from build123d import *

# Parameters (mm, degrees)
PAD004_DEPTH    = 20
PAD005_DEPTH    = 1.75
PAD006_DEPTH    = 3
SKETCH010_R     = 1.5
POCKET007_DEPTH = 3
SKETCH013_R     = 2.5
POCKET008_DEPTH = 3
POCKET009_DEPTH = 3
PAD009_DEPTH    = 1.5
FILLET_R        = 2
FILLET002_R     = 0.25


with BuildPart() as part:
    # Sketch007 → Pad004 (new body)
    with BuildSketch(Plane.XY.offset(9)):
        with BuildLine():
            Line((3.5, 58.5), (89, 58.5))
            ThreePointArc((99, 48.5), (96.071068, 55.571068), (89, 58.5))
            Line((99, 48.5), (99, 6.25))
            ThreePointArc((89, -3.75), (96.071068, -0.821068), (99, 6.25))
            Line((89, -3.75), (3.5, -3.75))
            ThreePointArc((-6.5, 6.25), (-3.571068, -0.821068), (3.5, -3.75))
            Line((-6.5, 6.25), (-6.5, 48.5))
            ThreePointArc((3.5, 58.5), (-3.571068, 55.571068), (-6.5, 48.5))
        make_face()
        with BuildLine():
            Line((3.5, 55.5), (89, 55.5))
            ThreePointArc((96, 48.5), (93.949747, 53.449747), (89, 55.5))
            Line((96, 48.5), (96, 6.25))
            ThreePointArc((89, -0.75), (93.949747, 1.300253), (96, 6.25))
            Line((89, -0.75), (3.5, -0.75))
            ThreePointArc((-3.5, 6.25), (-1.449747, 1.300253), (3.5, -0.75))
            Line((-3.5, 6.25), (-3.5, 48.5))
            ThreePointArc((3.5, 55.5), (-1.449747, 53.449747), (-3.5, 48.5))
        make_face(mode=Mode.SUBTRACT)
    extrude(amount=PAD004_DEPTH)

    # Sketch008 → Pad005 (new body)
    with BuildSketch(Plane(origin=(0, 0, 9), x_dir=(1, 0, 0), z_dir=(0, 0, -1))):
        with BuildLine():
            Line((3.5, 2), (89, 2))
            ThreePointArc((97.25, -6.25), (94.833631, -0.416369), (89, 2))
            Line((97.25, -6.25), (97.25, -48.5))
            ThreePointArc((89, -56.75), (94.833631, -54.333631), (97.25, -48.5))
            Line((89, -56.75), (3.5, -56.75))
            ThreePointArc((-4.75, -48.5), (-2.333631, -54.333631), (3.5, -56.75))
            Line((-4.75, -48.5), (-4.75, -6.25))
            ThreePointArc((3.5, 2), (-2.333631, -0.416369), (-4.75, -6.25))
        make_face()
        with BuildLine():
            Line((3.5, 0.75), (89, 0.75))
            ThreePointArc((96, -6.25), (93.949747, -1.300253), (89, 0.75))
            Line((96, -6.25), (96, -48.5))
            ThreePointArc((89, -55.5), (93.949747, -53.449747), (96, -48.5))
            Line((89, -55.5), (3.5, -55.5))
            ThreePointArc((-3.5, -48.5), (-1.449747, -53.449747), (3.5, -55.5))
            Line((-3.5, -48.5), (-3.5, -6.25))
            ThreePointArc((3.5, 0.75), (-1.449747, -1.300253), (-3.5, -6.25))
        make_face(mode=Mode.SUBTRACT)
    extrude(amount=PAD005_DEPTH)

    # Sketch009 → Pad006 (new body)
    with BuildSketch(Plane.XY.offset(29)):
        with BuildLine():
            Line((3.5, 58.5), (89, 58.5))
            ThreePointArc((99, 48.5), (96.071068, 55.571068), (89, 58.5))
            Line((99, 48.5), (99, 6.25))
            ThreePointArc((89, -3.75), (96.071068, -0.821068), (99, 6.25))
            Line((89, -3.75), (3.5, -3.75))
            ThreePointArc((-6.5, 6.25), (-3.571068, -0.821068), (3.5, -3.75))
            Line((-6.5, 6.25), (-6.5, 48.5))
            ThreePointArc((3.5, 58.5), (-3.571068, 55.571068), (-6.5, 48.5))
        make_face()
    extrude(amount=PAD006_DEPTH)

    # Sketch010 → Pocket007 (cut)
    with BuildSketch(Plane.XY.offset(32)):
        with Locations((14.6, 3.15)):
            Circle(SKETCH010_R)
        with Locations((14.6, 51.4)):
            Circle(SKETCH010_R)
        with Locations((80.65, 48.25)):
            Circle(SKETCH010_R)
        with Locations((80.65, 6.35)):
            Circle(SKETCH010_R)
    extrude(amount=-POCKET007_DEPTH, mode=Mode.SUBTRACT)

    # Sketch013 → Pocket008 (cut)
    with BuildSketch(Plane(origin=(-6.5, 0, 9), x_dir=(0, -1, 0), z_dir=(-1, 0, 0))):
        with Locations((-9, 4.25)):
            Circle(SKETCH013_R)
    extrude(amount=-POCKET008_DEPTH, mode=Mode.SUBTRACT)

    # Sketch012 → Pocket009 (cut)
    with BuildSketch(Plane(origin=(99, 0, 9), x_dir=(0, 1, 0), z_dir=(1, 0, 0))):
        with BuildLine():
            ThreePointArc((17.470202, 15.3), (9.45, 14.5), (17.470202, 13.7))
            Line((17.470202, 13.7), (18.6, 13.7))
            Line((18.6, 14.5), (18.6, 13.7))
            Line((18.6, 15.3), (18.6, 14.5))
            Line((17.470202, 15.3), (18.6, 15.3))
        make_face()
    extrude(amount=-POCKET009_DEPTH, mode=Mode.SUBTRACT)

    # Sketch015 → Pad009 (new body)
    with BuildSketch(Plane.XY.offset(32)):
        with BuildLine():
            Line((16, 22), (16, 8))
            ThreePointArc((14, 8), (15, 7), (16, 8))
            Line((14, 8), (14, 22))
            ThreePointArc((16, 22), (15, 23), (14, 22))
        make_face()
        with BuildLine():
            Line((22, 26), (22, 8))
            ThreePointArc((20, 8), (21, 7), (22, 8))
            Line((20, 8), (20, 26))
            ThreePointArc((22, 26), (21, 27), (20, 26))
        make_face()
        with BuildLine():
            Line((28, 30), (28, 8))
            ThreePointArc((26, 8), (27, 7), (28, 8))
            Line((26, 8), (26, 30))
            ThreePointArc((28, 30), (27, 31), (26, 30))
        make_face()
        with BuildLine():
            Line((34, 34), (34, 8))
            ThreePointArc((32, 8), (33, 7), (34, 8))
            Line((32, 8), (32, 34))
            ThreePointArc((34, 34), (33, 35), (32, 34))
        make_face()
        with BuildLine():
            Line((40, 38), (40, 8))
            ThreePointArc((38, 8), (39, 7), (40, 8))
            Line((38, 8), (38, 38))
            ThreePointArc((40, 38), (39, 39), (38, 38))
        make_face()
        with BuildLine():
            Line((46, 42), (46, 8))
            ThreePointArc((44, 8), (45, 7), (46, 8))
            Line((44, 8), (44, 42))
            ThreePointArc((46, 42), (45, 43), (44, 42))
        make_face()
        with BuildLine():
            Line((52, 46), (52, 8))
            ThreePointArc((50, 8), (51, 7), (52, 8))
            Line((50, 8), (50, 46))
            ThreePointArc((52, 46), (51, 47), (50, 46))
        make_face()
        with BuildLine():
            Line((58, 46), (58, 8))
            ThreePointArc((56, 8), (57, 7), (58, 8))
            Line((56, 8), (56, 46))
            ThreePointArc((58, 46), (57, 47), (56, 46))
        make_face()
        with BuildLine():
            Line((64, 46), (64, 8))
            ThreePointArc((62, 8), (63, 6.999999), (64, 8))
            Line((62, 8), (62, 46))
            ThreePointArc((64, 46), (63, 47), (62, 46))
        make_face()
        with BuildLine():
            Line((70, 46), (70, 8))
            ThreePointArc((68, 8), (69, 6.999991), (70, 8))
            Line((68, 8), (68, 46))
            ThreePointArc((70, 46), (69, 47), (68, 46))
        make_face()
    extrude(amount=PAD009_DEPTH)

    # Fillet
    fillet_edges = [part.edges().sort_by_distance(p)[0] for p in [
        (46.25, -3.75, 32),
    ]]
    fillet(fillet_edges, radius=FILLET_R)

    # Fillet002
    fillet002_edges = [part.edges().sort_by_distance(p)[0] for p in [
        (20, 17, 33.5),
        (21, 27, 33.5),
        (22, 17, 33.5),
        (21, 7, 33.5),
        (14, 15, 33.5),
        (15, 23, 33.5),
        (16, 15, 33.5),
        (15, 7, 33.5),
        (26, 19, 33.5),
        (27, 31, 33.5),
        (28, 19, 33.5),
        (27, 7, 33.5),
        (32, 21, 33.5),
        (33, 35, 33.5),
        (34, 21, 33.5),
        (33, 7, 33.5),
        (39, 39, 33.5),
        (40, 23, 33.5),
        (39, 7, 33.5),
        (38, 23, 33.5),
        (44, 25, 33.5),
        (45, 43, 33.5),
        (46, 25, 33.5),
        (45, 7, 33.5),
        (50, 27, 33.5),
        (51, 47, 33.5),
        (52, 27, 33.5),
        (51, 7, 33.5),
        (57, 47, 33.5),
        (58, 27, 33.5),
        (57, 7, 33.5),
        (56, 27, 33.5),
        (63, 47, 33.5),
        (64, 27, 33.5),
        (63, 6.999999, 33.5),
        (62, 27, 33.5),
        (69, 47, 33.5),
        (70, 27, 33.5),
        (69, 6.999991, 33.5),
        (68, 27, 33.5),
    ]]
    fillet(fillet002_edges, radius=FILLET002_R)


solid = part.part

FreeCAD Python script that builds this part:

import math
import FreeCAD as App
import Part
import Sketcher

V = App.Vector
Q = App.Units.Quantity


def edges_at(feature, points):
    """Names of the edges that pass closest to the given points."""
    edges = feature.Shape.Edges
    near = lambda p: min(range(len(edges)), key=lambda i: edges[i].distToShape(Part.Vertex(*p))[0])
    return sorted({f"Edge{near(p) + 1}" for p in points})

doc = App.newDocument("Part")
body = doc.addObject("PartDesign::Body", "Body")

# Sketch on XY plane
sketch1 = doc.addObject("Sketcher::SketchObject", "Sketch")
body.addObject(sketch1)
sketch1.AttachmentSupport = (doc.XY_Plane, [""])
sketch1.MapMode = "FlatFace"
sketch1.AttachmentOffset = App.Placement(V(0, 0, 9), App.Rotation())
sketch1.addGeometry(Part.LineSegment(V(89, 58, 0), V(4, 58, 0)), False)
sketch1.addGeometry(Part.ArcOfCircle(Part.Circle(V(3, 49, 0), V(0, 0, 1), 10), math.radians(90), math.radians(180)), False)
sketch1.addGeometry(Part.LineSegment(V(-6, 48, 0), V(-6, 6, 0)), False)
sketch1.addGeometry(Part.ArcOfCircle(Part.Circle(V(3, 6, 0), V(0, 0, 1), 10), math.radians(180), math.radians(270)), False)
sketch1.addGeometry(Part.LineSegment(V(4, -4, 0), V(89, -4, 0)), False)
sketch1.addGeometry(Part.ArcOfCircle(Part.Circle(V(89, 6, 0), V(0, 0, 1), 10), math.radians(-90), math.radians(0)), False)
sketch1.addGeometry(Part.LineSegment(V(99, 6, 0), V(99, 48, 0)), False)
sketch1.addGeometry(Part.ArcOfCircle(Part.Circle(V(89, 49, 0), V(0, 0, 1), 10), math.radians(0), math.radians(90)), False)
sketch1.addGeometry(Part.LineSegment(V(4, 56, 0), V(89, 56, 0)), False)
sketch1.addGeometry(Part.ArcOfCircle(Part.Circle(V(89, 48, 0), V(0, 0, 1), 7), math.radians(0), math.radians(90)), False)
sketch1.addGeometry(Part.LineSegment(V(96, 48, 0), V(96, 6, 0)), False)
sketch1.addGeometry(Part.ArcOfCircle(Part.Circle(V(89, 6, 0), V(0, 0, 1), 7), math.radians(-90), math.radians(0)), False)
sketch1.addGeometry(Part.LineSegment(V(89, -1, 0), V(4, -1, 0)), False)
sketch1.addGeometry(Part.ArcOfCircle(Part.Circle(V(4, 6, 0), V(0, 0, 1), 7), math.radians(-180), math.radians(-90)), False)
sketch1.addGeometry(Part.LineSegment(V(-4, 6, 0), V(-4, 48, 0)), False)
sketch1.addGeometry(Part.ArcOfCircle(Part.Circle(V(4, 48, 0), V(0, 0, 1), 7), math.radians(90), math.radians(180)), False)
sketch1.addConstraint(Sketcher.Constraint("Tangent", 0, 2, 1, 1))
sketch1.addConstraint(Sketcher.Constraint("Tangent", 1, 2, 2, 1))
sketch1.addConstraint(Sketcher.Constraint("Tangent", 2, 2, 3, 1))
sketch1.addConstraint(Sketcher.Constraint("Tangent", 3, 2, 4, 1))
sketch1.addConstraint(Sketcher.Constraint("Tangent", 4, 2, 5, 1))
sketch1.addConstraint(Sketcher.Constraint("Tangent", 5, 2, 6, 1))
sketch1.addConstraint(Sketcher.Constraint("Tangent", 6, 2, 7, 1))
sketch1.addConstraint(Sketcher.Constraint("Tangent", 7, 2, 0, 1))
sketch1.addConstraint(Sketcher.Constraint("Tangent", 8, 2, 9, 2))
sketch1.addConstraint(Sketcher.Constraint("Tangent", 9, 1, 10, 1))
sketch1.addConstraint(Sketcher.Constraint("Tangent", 10, 2, 11, 2))
sketch1.addConstraint(Sketcher.Constraint("Tangent", 11, 1, 12, 1))
sketch1.addConstraint(Sketcher.Constraint("Tangent", 12, 2, 13, 2))
sketch1.addConstraint(Sketcher.Constraint("Tangent", 13, 1, 14, 1))
sketch1.addConstraint(Sketcher.Constraint("Tangent", 14, 2, 15, 2))
sketch1.addConstraint(Sketcher.Constraint("Tangent", 15, 1, 8, 1))
sketch1.addConstraint(Sketcher.Constraint("Horizontal", 0))
sketch1.addConstraint(Sketcher.Constraint("Vertical", 2))
sketch1.addConstraint(Sketcher.Constraint("Horizontal", 4))
sketch1.addConstraint(Sketcher.Constraint("Vertical", 6))
sketch1.addConstraint(Sketcher.Constraint("Horizontal", 8))
sketch1.addConstraint(Sketcher.Constraint("Vertical", 10))
sketch1.addConstraint(Sketcher.Constraint("Horizontal", 12))
sketch1.addConstraint(Sketcher.Constraint("Vertical", 14))
sketch1.addConstraint(Sketcher.Constraint("Coincident", 9, 3, 7, 3))
sketch1.addConstraint(Sketcher.Constraint("Coincident", 11, 3, 5, 3))
sketch1.addConstraint(Sketcher.Constraint("Coincident", 13, 3, 3, 3))
sketch1.addConstraint(Sketcher.Constraint("Equal", 1, 3))
sketch1.addConstraint(Sketcher.Constraint("Equal", 3, 5))
sketch1.addConstraint(Sketcher.Constraint("Equal", 5, 7))
sketch1.addConstraint(Sketcher.Constraint("Equal", 13, 15))
sketch1.addConstraint(Sketcher.Constraint("Radius", 1, Q("9.999999 mm")))
sketch1.addConstraint(Sketcher.Constraint("Radius", 9, Q("7.000002 mm")))
sketch1.addConstraint(Sketcher.Constraint("DistanceX", 0, 2, 0, 1, Q("85.5 mm")))
sketch1.addConstraint(Sketcher.Constraint("DistanceX", -1, 1, 5, 3, Q("89.000001 mm")))
sketch1.addConstraint(Sketcher.Constraint("DistanceY", 2, 2, 2, 1, Q("42.25 mm")))
sketch1.addConstraint(Sketcher.Constraint("DistanceY", -1, 1, 1, 3, Q("48.500001 mm")))
pad1 = doc.addObject("PartDesign::Pad", "Pad")
body.addObject(pad1)
pad1.Profile = sketch1
pad1.Length = 20

# Sketch on XY plane
sketch2 = doc.addObject("Sketcher::SketchObject", "Sketch001")
body.addObject(sketch2)
sketch2.AttachmentSupport = (doc.XY_Plane, [""])
sketch2.MapMode = "FlatFace"
sketch2.AttachmentOffset = App.Placement(V(0, 0, 9), App.Rotation())
sketch2.addGeometry(Part.LineSegment(V(89, -2, 0), V(4, -2, 0)), False)
sketch2.addGeometry(Part.ArcOfCircle(Part.Circle(V(3, 6, 0), V(0, 0, 1), 8), math.radians(180), math.radians(270)), False)
sketch2.addGeometry(Part.LineSegment(V(-5, 6, 0), V(-5, 48, 0)), False)
sketch2.addGeometry(Part.ArcOfCircle(Part.Circle(V(3, 49, 0), V(0, 0, 1), 8), math.radians(90), math.radians(180)), False)
sketch2.addGeometry(Part.LineSegment(V(4, 57, 0), V(89, 57, 0)), False)
sketch2.addGeometry(Part.ArcOfCircle(Part.Circle(V(89, 49, 0), V(0, 0, 1), 8), math.radians(0), math.radians(90)), False)
sketch2.addGeometry(Part.LineSegment(V(97, 48, 0), V(97, 6, 0)), False)
sketch2.addGeometry(Part.ArcOfCircle(Part.Circle(V(89, 6, 0), V(0, 0, 1), 8), math.radians(-90), math.radians(0)), False)
sketch2.addGeometry(Part.LineSegment(V(4, -1, 0), V(89, -1, 0)), False)
sketch2.addGeometry(Part.ArcOfCircle(Part.Circle(V(89, 6, 0), V(0, 0, 1), 7), math.radians(-90), math.radians(0)), False)
sketch2.addGeometry(Part.LineSegment(V(96, 6, 0), V(96, 48, 0)), False)
sketch2.addGeometry(Part.ArcOfCircle(Part.Circle(V(89, 48, 0), V(0, 0, 1), 7), math.radians(0), math.radians(90)), False)
sketch2.addGeometry(Part.LineSegment(V(89, 56, 0), V(4, 56, 0)), False)
sketch2.addGeometry(Part.ArcOfCircle(Part.Circle(V(4, 48, 0), V(0, 0, 1), 7), math.radians(90), math.radians(180)), False)
sketch2.addGeometry(Part.LineSegment(V(-4, 48, 0), V(-4, 6, 0)), False)
sketch2.addGeometry(Part.ArcOfCircle(Part.Circle(V(4, 6, 0), V(0, 0, 1), 7), math.radians(-180), math.radians(-90)), False)
sketch2.addConstraint(Sketcher.Constraint("Tangent", 0, 2, 1, 2))
sketch2.addConstraint(Sketcher.Constraint("Tangent", 1, 1, 2, 1))
sketch2.addConstraint(Sketcher.Constraint("Tangent", 2, 2, 3, 2))
sketch2.addConstraint(Sketcher.Constraint("Tangent", 3, 1, 4, 1))
sketch2.addConstraint(Sketcher.Constraint("Tangent", 4, 2, 5, 2))
sketch2.addConstraint(Sketcher.Constraint("Tangent", 5, 1, 6, 1))
sketch2.addConstraint(Sketcher.Constraint("Tangent", 6, 2, 7, 2))
sketch2.addConstraint(Sketcher.Constraint("Tangent", 7, 1, 0, 1))
sketch2.addConstraint(Sketcher.Constraint("Tangent", 8, 2, 9, 1))
sketch2.addConstraint(Sketcher.Constraint("Tangent", 9, 2, 10, 1))
sketch2.addConstraint(Sketcher.Constraint("Tangent", 10, 2, 11, 1))
sketch2.addConstraint(Sketcher.Constraint("Tangent", 11, 2, 12, 1))
sketch2.addConstraint(Sketcher.Constraint("Tangent", 12, 2, 13, 1))
sketch2.addConstraint(Sketcher.Constraint("Tangent", 13, 2, 14, 1))
sketch2.addConstraint(Sketcher.Constraint("Tangent", 14, 2, 15, 1))
sketch2.addConstraint(Sketcher.Constraint("Tangent", 15, 2, 8, 1))
sketch2.addConstraint(Sketcher.Constraint("Horizontal", 0))
sketch2.addConstraint(Sketcher.Constraint("Vertical", 2))
sketch2.addConstraint(Sketcher.Constraint("Horizontal", 4))
sketch2.addConstraint(Sketcher.Constraint("Vertical", 6))
sketch2.addConstraint(Sketcher.Constraint("Horizontal", 8))
sketch2.addConstraint(Sketcher.Constraint("Vertical", 10))
sketch2.addConstraint(Sketcher.Constraint("Horizontal", 12))
sketch2.addConstraint(Sketcher.Constraint("Vertical", 14))
sketch2.addConstraint(Sketcher.Constraint("Coincident", 9, 3, 7, 3))
sketch2.addConstraint(Sketcher.Constraint("Coincident", 11, 3, 5, 3))
sketch2.addConstraint(Sketcher.Constraint("Coincident", 13, 3, 3, 3))
sketch2.addConstraint(Sketcher.Constraint("Equal", 1, 3))
sketch2.addConstraint(Sketcher.Constraint("Equal", 3, 5))
sketch2.addConstraint(Sketcher.Constraint("Equal", 5, 7))
sketch2.addConstraint(Sketcher.Constraint("Equal", 13, 15))
sketch2.addConstraint(Sketcher.Constraint("Radius", 9, Q("7.000002 mm")))
sketch2.addConstraint(Sketcher.Constraint("Radius", 1, Q("8.25 mm")))
sketch2.addConstraint(Sketcher.Constraint("DistanceX", 0, 2, 0, 1, Q("85.5 mm")))
sketch2.addConstraint(Sketcher.Constraint("DistanceX", -1, 1, 5, 3, Q("89 mm")))
sketch2.addConstraint(Sketcher.Constraint("DistanceY", 0, 2, -1, 1, Q("2 mm")))
sketch2.addConstraint(Sketcher.Constraint("DistanceY", 2, 1, 2, 2, Q("42.25 mm")))
pad2 = doc.addObject("PartDesign::Pad", "Pad001")
body.addObject(pad2)
pad2.Profile = sketch2
pad2.Length = 1.75
pad2.Reversed = True

# Sketch on XY plane
sketch3 = doc.addObject("Sketcher::SketchObject", "Sketch002")
body.addObject(sketch3)
sketch3.AttachmentSupport = (doc.XY_Plane, [""])
sketch3.MapMode = "FlatFace"
sketch3.AttachmentOffset = App.Placement(V(0, 0, 29), App.Rotation())
sketch3.addGeometry(Part.LineSegment(V(89, 58, 0), V(4, 58, 0)), False)
sketch3.addGeometry(Part.ArcOfCircle(Part.Circle(V(3, 49, 0), V(0, 0, 1), 10), math.radians(90), math.radians(180)), False)
sketch3.addGeometry(Part.LineSegment(V(-6, 48, 0), V(-6, 6, 0)), False)
sketch3.addGeometry(Part.ArcOfCircle(Part.Circle(V(3, 6, 0), V(0, 0, 1), 10), math.radians(180), math.radians(270)), False)
sketch3.addGeometry(Part.LineSegment(V(4, -4, 0), V(89, -4, 0)), False)
sketch3.addGeometry(Part.ArcOfCircle(Part.Circle(V(89, 6, 0), V(0, 0, 1), 10), math.radians(-90), math.radians(0)), False)
sketch3.addGeometry(Part.LineSegment(V(99, 6, 0), V(99, 48, 0)), False)
sketch3.addGeometry(Part.ArcOfCircle(Part.Circle(V(89, 49, 0), V(0, 0, 1), 10), math.radians(0), math.radians(90)), False)
sketch3.addConstraint(Sketcher.Constraint("Tangent", 0, 2, 1, 1))
sketch3.addConstraint(Sketcher.Constraint("Tangent", 1, 2, 2, 1))
sketch3.addConstraint(Sketcher.Constraint("Tangent", 2, 2, 3, 1))
sketch3.addConstraint(Sketcher.Constraint("Tangent", 3, 2, 4, 1))
sketch3.addConstraint(Sketcher.Constraint("Tangent", 4, 2, 5, 1))
sketch3.addConstraint(Sketcher.Constraint("Tangent", 5, 2, 6, 1))
sketch3.addConstraint(Sketcher.Constraint("Tangent", 6, 2, 7, 1))
sketch3.addConstraint(Sketcher.Constraint("Tangent", 7, 2, 0, 1))
sketch3.addConstraint(Sketcher.Constraint("Horizontal", 0))
sketch3.addConstraint(Sketcher.Constraint("Vertical", 2))
sketch3.addConstraint(Sketcher.Constraint("Horizontal", 4))
sketch3.addConstraint(Sketcher.Constraint("Vertical", 6))
sketch3.addConstraint(Sketcher.Constraint("Equal", 1, 3))
sketch3.addConstraint(Sketcher.Constraint("Equal", 3, 5))
sketch3.addConstraint(Sketcher.Constraint("Equal", 5, 7))
sketch3.addConstraint(Sketcher.Constraint("Radius", 1, Q("9.999999 mm")))
sketch3.addConstraint(Sketcher.Constraint("DistanceX", 0, 2, 0, 1, Q("85.5 mm")))
sketch3.addConstraint(Sketcher.Constraint("DistanceX", -1, 1, 5, 3, Q("89.000001 mm")))
sketch3.addConstraint(Sketcher.Constraint("DistanceY", 2, 2, 2, 1, Q("42.25 mm")))
sketch3.addConstraint(Sketcher.Constraint("DistanceY", -1, 1, 1, 3, Q("48.500001 mm")))
pad3 = doc.addObject("PartDesign::Pad", "Pad002")
body.addObject(pad3)
pad3.Profile = sketch3
pad3.Length = 3

# Sketch on XY plane
sketch4 = doc.addObject("Sketcher::SketchObject", "Sketch003")
body.addObject(sketch4)
sketch4.AttachmentSupport = (doc.XY_Plane, [""])
sketch4.MapMode = "FlatFace"
sketch4.AttachmentOffset = App.Placement(V(0, 0, 32), App.Rotation())
sketch4.addGeometry(Part.Circle(V(14.6, 3.1, 0), V(0, 0, 1), 1.5), False)
sketch4.addGeometry(Part.Circle(V(14.6, 51.4, 0), V(0, 0, 1), 1.5), False)
sketch4.addGeometry(Part.Circle(V(80.7, 48.2, 0), V(0, 0, 1), 1.5), False)
sketch4.addGeometry(Part.Circle(V(80.7, 6.3, 0), V(0, 0, 1), 1.5), False)
sketch4.addConstraint(Sketcher.Constraint("Equal", 0, 1))
sketch4.addConstraint(Sketcher.Constraint("Equal", 1, 2))
sketch4.addConstraint(Sketcher.Constraint("Equal", 2, 3))
sketch4.addConstraint(Sketcher.Constraint("Vertical", 0, 3, 1, 3))
sketch4.addConstraint(Sketcher.Constraint("Vertical", 2, 3, 3, 3))
sketch4.addConstraint(Sketcher.Constraint("Diameter", 0, Q("3 mm")))
sketch4.addConstraint(Sketcher.Constraint("DistanceX", -1, 1, 0, 3, Q("14.6 mm")))
sketch4.addConstraint(Sketcher.Constraint("DistanceY", -1, 1, 1, 3, Q("51.4 mm")))
sketch4.addConstraint(Sketcher.Constraint("DistanceY", 0, 3, 2, 3, Q("45.1 mm")))
sketch4.addConstraint(Sketcher.Constraint("DistanceY", 3, 3, 2, 3, Q("41.9 mm")))
sketch4.addConstraint(Sketcher.Constraint("DistanceY", -1, 1, 0, 3, Q("3.15 mm")))
sketch4.addConstraint(Sketcher.Constraint("DistanceX", -1, 1, 2, 3, Q("80.65 mm")))
pocket1 = doc.addObject("PartDesign::Pocket", "Pocket")
body.addObject(pocket1)
pocket1.Profile = sketch4
pocket1.Length = 3

# Sketch on YZ plane
sketch5 = doc.addObject("Sketcher::SketchObject", "Sketch004")
body.addObject(sketch5)
sketch5.AttachmentSupport = (doc.YZ_Plane, [""])
sketch5.MapMode = "FlatFace"
sketch5.AttachmentOffset = App.Placement(V(0, 0, -6.5), App.Rotation())
sketch5.addGeometry(Part.Circle(V(9, 13.2, 0), V(0, 0, 1), 2.5), False)
sketch5.addConstraint(Sketcher.Constraint("Diameter", 0, Q("5 mm")))
sketch5.addConstraint(Sketcher.Constraint("DistanceX", -1, 1, 0, 3, Q("9 mm")))
sketch5.addConstraint(Sketcher.Constraint("DistanceY", -1, 1, 0, 3, Q("13.25 mm")))
pocket2 = doc.addObject("PartDesign::Pocket", "Pocket001")
body.addObject(pocket2)
pocket2.Profile = sketch5
pocket2.Length = 3
pocket2.Reversed = True

# Sketch on YZ plane
sketch6 = doc.addObject("Sketcher::SketchObject", "Sketch005")
body.addObject(sketch6)
sketch6.AttachmentSupport = (doc.YZ_Plane, [""])
sketch6.MapMode = "FlatFace"
sketch6.AttachmentOffset = App.Placement(V(0, 0, 99), App.Rotation())
sketch6.addGeometry(Part.ArcOfCircle(Part.Circle(V(13.5, 23.5, 0), V(0, 0, 1), 4.1), math.radians(11), math.radians(349)), False)
sketch6.addGeometry(Part.LineSegment(V(17.5, 22.7, 0), V(18.6, 22.7, 0)), False)
sketch6.addGeometry(Part.LineSegment(V(18.6, 22.7, 0), V(18.6, 24.3, 0)), False)
sketch6.addGeometry(Part.LineSegment(V(18.6, 24.3, 0), V(17.5, 24.3, 0)), False)
sketch6.addConstraint(Sketcher.Constraint("Coincident", 0, 2, 1, 1))
sketch6.addConstraint(Sketcher.Constraint("Coincident", 1, 2, 2, 1))
sketch6.addConstraint(Sketcher.Constraint("Coincident", 2, 2, 3, 1))
sketch6.addConstraint(Sketcher.Constraint("Coincident", 3, 2, 0, 1))
sketch6.addConstraint(Sketcher.Constraint("Horizontal", 1))
sketch6.addConstraint(Sketcher.Constraint("Vertical", 2))
sketch6.addConstraint(Sketcher.Constraint("Horizontal", 3))
sketch6.addConstraint(Sketcher.Constraint("Vertical", 0, 2, 3, 2))
sketch6.addConstraint(Sketcher.Constraint("Radius", 0, Q("4.05 mm")))
sketch6.addConstraint(Sketcher.Constraint("DistanceY", 2, 1, 2, 2, Q("1.6 mm")))
sketch6.addConstraint(Sketcher.Constraint("DistanceX", -1, 1, 0, 3, Q("13.5 mm")))
sketch6.addConstraint(Sketcher.Constraint("DistanceY", -1, 1, 0, 3, Q("23.5 mm")))
sketch6.addConstraint(Sketcher.Constraint("DistanceX", -1, 1, 1, 2, Q("18.6 mm")))
pocket3 = doc.addObject("PartDesign::Pocket", "Pocket002")
body.addObject(pocket3)
pocket3.Profile = sketch6
pocket3.Length = 3

# Sketch on XY plane
sketch7 = doc.addObject("Sketcher::SketchObject", "Sketch006")
body.addObject(sketch7)
sketch7.AttachmentSupport = (doc.XY_Plane, [""])
sketch7.MapMode = "FlatFace"
sketch7.AttachmentOffset = App.Placement(V(0, 0, 32), App.Rotation())
sketch7.addGeometry(Part.LineSegment(V(16, 8, 0), V(16, 22, 0)), False)
sketch7.addGeometry(Part.ArcOfCircle(Part.Circle(V(15, 22, 0), V(0, 0, 1), 1), math.radians(0), math.radians(180)), False)
sketch7.addGeometry(Part.LineSegment(V(14, 22, 0), V(14, 8, 0)), False)
sketch7.addGeometry(Part.ArcOfCircle(Part.Circle(V(15, 8, 0), V(0, 0, 1), 1), math.radians(180), math.radians(360)), False)
sketch7.addGeometry(Part.LineSegment(V(22, 8, 0), V(22, 26, 0)), False)
sketch7.addGeometry(Part.ArcOfCircle(Part.Circle(V(21, 26, 0), V(0, 0, 1), 1), math.radians(0), math.radians(180)), False)
sketch7.addGeometry(Part.LineSegment(V(20, 26, 0), V(20, 8, 0)), False)
sketch7.addGeometry(Part.ArcOfCircle(Part.Circle(V(21, 8, 0), V(0, 0, 1), 1), math.radians(180), math.radians(360)), False)
sketch7.addGeometry(Part.LineSegment(V(28, 8, 0), V(28, 30, 0)), False)
sketch7.addGeometry(Part.ArcOfCircle(Part.Circle(V(27, 30, 0), V(0, 0, 1), 1), math.radians(0), math.radians(180)), False)
sketch7.addGeometry(Part.LineSegment(V(26, 30, 0), V(26, 8, 0)), False)
sketch7.addGeometry(Part.ArcOfCircle(Part.Circle(V(27, 8, 0), V(0, 0, 1), 1), math.radians(180), math.radians(360)), False)
sketch7.addGeometry(Part.LineSegment(V(34, 8, 0), V(34, 34, 0)), False)
sketch7.addGeometry(Part.ArcOfCircle(Part.Circle(V(33, 34, 0), V(0, 0, 1), 1), math.radians(0), math.radians(180)), False)
sketch7.addGeometry(Part.LineSegment(V(32, 34, 0), V(32, 8, 0)), False)
sketch7.addGeometry(Part.ArcOfCircle(Part.Circle(V(33, 8, 0), V(0, 0, 1), 1), math.radians(180), math.radians(360)), False)
sketch7.addGeometry(Part.LineSegment(V(40, 8, 0), V(40, 38, 0)), False)
sketch7.addGeometry(Part.ArcOfCircle(Part.Circle(V(39, 38, 0), V(0, 0, 1), 1), math.radians(0), math.radians(180)), False)
sketch7.addGeometry(Part.LineSegment(V(38, 38, 0), V(38, 8, 0)), False)
sketch7.addGeometry(Part.ArcOfCircle(Part.Circle(V(39, 8, 0), V(0, 0, 1), 1), math.radians(180), math.radians(360)), False)
sketch7.addGeometry(Part.LineSegment(V(46, 8, 0), V(46, 42, 0)), False)
sketch7.addGeometry(Part.ArcOfCircle(Part.Circle(V(45, 42, 0), V(0, 0, 1), 1), math.radians(0), math.radians(180)), False)
sketch7.addGeometry(Part.LineSegment(V(44, 42, 0), V(44, 8, 0)), False)
sketch7.addGeometry(Part.ArcOfCircle(Part.Circle(V(45, 8, 0), V(0, 0, 1), 1), math.radians(180), math.radians(360)), False)
sketch7.addGeometry(Part.LineSegment(V(52, 8, 0), V(52, 46, 0)), False)
sketch7.addGeometry(Part.ArcOfCircle(Part.Circle(V(51, 46, 0), V(0, 0, 1), 1), math.radians(0), math.radians(180)), False)
sketch7.addGeometry(Part.LineSegment(V(50, 46, 0), V(50, 8, 0)), False)
sketch7.addGeometry(Part.ArcOfCircle(Part.Circle(V(51, 8, 0), V(0, 0, 1), 1), math.radians(180), math.radians(360)), False)
sketch7.addGeometry(Part.LineSegment(V(58, 8, 0), V(58, 46, 0)), False)
sketch7.addGeometry(Part.ArcOfCircle(Part.Circle(V(57, 46, 0), V(0, 0, 1), 1), math.radians(0), math.radians(180)), False)
sketch7.addGeometry(Part.LineSegment(V(56, 46, 0), V(56, 8, 0)), False)
sketch7.addGeometry(Part.ArcOfCircle(Part.Circle(V(57, 8, 0), V(0, 0, 1), 1), math.radians(180), math.radians(360)), False)
sketch7.addGeometry(Part.LineSegment(V(64, 8, 0), V(64, 46, 0)), False)
sketch7.addGeometry(Part.ArcOfCircle(Part.Circle(V(63, 46, 0), V(0, 0, 1), 1), math.radians(0), math.radians(180)), False)
sketch7.addGeometry(Part.LineSegment(V(62, 46, 0), V(62, 8, 0)), False)
sketch7.addGeometry(Part.ArcOfCircle(Part.Circle(V(63, 8, 0), V(0, 0, 1), 1), math.radians(180), math.radians(360)), False)
sketch7.addGeometry(Part.LineSegment(V(70, 8, 0), V(70, 46, 0)), False)
sketch7.addGeometry(Part.ArcOfCircle(Part.Circle(V(69, 46, 0), V(0, 0, 1), 1), math.radians(0), math.radians(180)), False)
sketch7.addGeometry(Part.LineSegment(V(68, 46, 0), V(68, 8, 0)), False)
sketch7.addGeometry(Part.ArcOfCircle(Part.Circle(V(69, 8, 0), V(0, 0, 1), 1), math.radians(180), math.radians(360)), False)
sketch7.addConstraint(Sketcher.Constraint("Tangent", 0, 2, 1, 1))
sketch7.addConstraint(Sketcher.Constraint("Tangent", 1, 2, 2, 1))
sketch7.addConstraint(Sketcher.Constraint("Tangent", 2, 2, 3, 1))
sketch7.addConstraint(Sketcher.Constraint("Tangent", 3, 2, 0, 1))
sketch7.addConstraint(Sketcher.Constraint("Tangent", 4, 2, 5, 1))
sketch7.addConstraint(Sketcher.Constraint("Tangent", 5, 2, 6, 1))
sketch7.addConstraint(Sketcher.Constraint("Tangent", 6, 2, 7, 1))
sketch7.addConstraint(Sketcher.Constraint("Tangent", 7, 2, 4, 1))
sketch7.addConstraint(Sketcher.Constraint("Tangent", 8, 2, 9, 1))
sketch7.addConstraint(Sketcher.Constraint("Tangent", 9, 2, 10, 1))
sketch7.addConstraint(Sketcher.Constraint("Tangent", 10, 2, 11, 1))
sketch7.addConstraint(Sketcher.Constraint("Tangent", 11, 2, 8, 1))
sketch7.addConstraint(Sketcher.Constraint("Tangent", 12, 2, 13, 1))
sketch7.addConstraint(Sketcher.Constraint("Tangent", 13, 2, 14, 1))
sketch7.addConstraint(Sketcher.Constraint("Tangent", 14, 2, 15, 1))
sketch7.addConstraint(Sketcher.Constraint("Tangent", 15, 2, 12, 1))
sketch7.addConstraint(Sketcher.Constraint("Tangent", 16, 2, 17, 1))
sketch7.addConstraint(Sketcher.Constraint("Tangent", 17, 2, 18, 1))
sketch7.addConstraint(Sketcher.Constraint("Tangent", 18, 2, 19, 1))
sketch7.addConstraint(Sketcher.Constraint("Tangent", 19, 2, 16, 1))
sketch7.addConstraint(Sketcher.Constraint("Tangent", 20, 2, 21, 1))
sketch7.addConstraint(Sketcher.Constraint("Tangent", 21, 2, 22, 1))
sketch7.addConstraint(Sketcher.Constraint("Tangent", 22, 2, 23, 1))
sketch7.addConstraint(Sketcher.Constraint("Tangent", 23, 2, 20, 1))
sketch7.addConstraint(Sketcher.Constraint("Tangent", 24, 2, 25, 1))
sketch7.addConstraint(Sketcher.Constraint("Tangent", 25, 2, 26, 1))
sketch7.addConstraint(Sketcher.Constraint("Tangent", 26, 2, 27, 1))
sketch7.addConstraint(Sketcher.Constraint("Tangent", 27, 2, 24, 1))
sketch7.addConstraint(Sketcher.Constraint("Tangent", 28, 2, 29, 1))
sketch7.addConstraint(Sketcher.Constraint("Tangent", 29, 2, 30, 1))
sketch7.addConstraint(Sketcher.Constraint("Tangent", 30, 2, 31, 1))
sketch7.addConstraint(Sketcher.Constraint("Tangent", 31, 2, 28, 1))
sketch7.addConstraint(Sketcher.Constraint("Tangent", 32, 2, 33, 1))
sketch7.addConstraint(Sketcher.Constraint("Tangent", 33, 2, 34, 1))
sketch7.addConstraint(Sketcher.Constraint("Tangent", 34, 2, 35, 1))
sketch7.addConstraint(Sketcher.Constraint("Tangent", 35, 2, 32, 1))
sketch7.addConstraint(Sketcher.Constraint("Tangent", 36, 2, 37, 1))
sketch7.addConstraint(Sketcher.Constraint("Tangent", 37, 2, 38, 1))
sketch7.addConstraint(Sketcher.Constraint("Coincident", 38, 2, 39, 1))
sketch7.addConstraint(Sketcher.Constraint("Coincident", 39, 2, 36, 1))
sketch7.addConstraint(Sketcher.Constraint("Vertical", 0))
sketch7.addConstraint(Sketcher.Constraint("Vertical", 2))
sketch7.addConstraint(Sketcher.Constraint("Vertical", 4))
sketch7.addConstraint(Sketcher.Constraint("Vertical", 6))
sketch7.addConstraint(Sketcher.Constraint("Vertical", 8))
sketch7.addConstraint(Sketcher.Constraint("Vertical", 10))
sketch7.addConstraint(Sketcher.Constraint("Vertical", 12))
sketch7.addConstraint(Sketcher.Constraint("Vertical", 14))
sketch7.addConstraint(Sketcher.Constraint("Vertical", 16))
sketch7.addConstraint(Sketcher.Constraint("Vertical", 18))
sketch7.addConstraint(Sketcher.Constraint("Vertical", 20))
sketch7.addConstraint(Sketcher.Constraint("Vertical", 22))
sketch7.addConstraint(Sketcher.Constraint("Vertical", 24))
sketch7.addConstraint(Sketcher.Constraint("Vertical", 26))
sketch7.addConstraint(Sketcher.Constraint("Vertical", 28))
sketch7.addConstraint(Sketcher.Constraint("Vertical", 30))
sketch7.addConstraint(Sketcher.Constraint("Vertical", 32))
sketch7.addConstraint(Sketcher.Constraint("Vertical", 34))
sketch7.addConstraint(Sketcher.Constraint("Vertical", 36))
sketch7.addConstraint(Sketcher.Constraint("Vertical", 38))
sketch7.addConstraint(Sketcher.Constraint("Equal", 3, 5))
sketch7.addConstraint(Sketcher.Constraint("Equal", 7, 9))
sketch7.addConstraint(Sketcher.Constraint("Equal", 11, 13))
sketch7.addConstraint(Sketcher.Constraint("Equal", 15, 17))
sketch7.addConstraint(Sketcher.Constraint("Equal", 19, 21))
sketch7.addConstraint(Sketcher.Constraint("Equal", 23, 25))
sketch7.addConstraint(Sketcher.Constraint("Equal", 27, 29))
sketch7.addConstraint(Sketcher.Constraint("Equal", 31, 33))
sketch7.addConstraint(Sketcher.Constraint("Equal", 35, 37))
sketch7.addConstraint(Sketcher.Constraint("Horizontal", 3, 3, 7, 3))
sketch7.addConstraint(Sketcher.Constraint("Horizontal", 7, 3, 11, 3))
sketch7.addConstraint(Sketcher.Constraint("Horizontal", 11, 3, 15, 3))
sketch7.addConstraint(Sketcher.Constraint("Horizontal", 15, 3, 19, 3))
sketch7.addConstraint(Sketcher.Constraint("Horizontal", 19, 3, 23, 3))
sketch7.addConstraint(Sketcher.Constraint("Horizontal", 23, 3, 27, 3))
sketch7.addConstraint(Sketcher.Constraint("Horizontal", 25, 3, 29, 3))
sketch7.addConstraint(Sketcher.Constraint("Horizontal", 27, 3, 31, 3))
sketch7.addConstraint(Sketcher.Constraint("Horizontal", 29, 3, 33, 3))
sketch7.addConstraint(Sketcher.Constraint("Horizontal", 31, 3, 35, 3))
sketch7.addConstraint(Sketcher.Constraint("Horizontal", 33, 3, 37, 3))
sketch7.addConstraint(Sketcher.Constraint("Horizontal", 35, 2, 38, 2))
sketch7.addConstraint(Sketcher.Constraint("Horizontal", 38, 2, 39, 2))
sketch7.addConstraint(Sketcher.Constraint("Radius", 1, Q("1 mm")))
sketch7.addConstraint(Sketcher.Constraint("DistanceY", 0, 1, 0, 2, Q("14 mm")))
sketch7.addConstraint(Sketcher.Constraint("DistanceY", 4, 1, 4, 2, Q("18 mm")))
sketch7.addConstraint(Sketcher.Constraint("DistanceY", 8, 1, 8, 2, Q("22 mm")))
sketch7.addConstraint(Sketcher.Constraint("DistanceY", 12, 1, 12, 2, Q("26 mm")))
sketch7.addConstraint(Sketcher.Constraint("DistanceY", 16, 1, 16, 2, Q("30 mm")))
sketch7.addConstraint(Sketcher.Constraint("DistanceY", 20, 1, 20, 2, Q("34 mm")))
sketch7.addConstraint(Sketcher.Constraint("DistanceY", 24, 1, 24, 2, Q("38 mm")))
sketch7.addConstraint(Sketcher.Constraint("DistanceX", -1, 1, 1, 3, Q("15 mm")))
sketch7.addConstraint(Sketcher.Constraint("DistanceY", -1, 1, 1, 3, Q("22 mm")))
sketch7.addConstraint(Sketcher.Constraint("DistanceX", -1, 1, 5, 3, Q("21 mm")))
sketch7.addConstraint(Sketcher.Constraint("DistanceX", -1, 1, 9, 3, Q("27 mm")))
sketch7.addConstraint(Sketcher.Constraint("DistanceX", -1, 1, 13, 3, Q("33 mm")))
sketch7.addConstraint(Sketcher.Constraint("DistanceX", -1, 1, 17, 3, Q("39 mm")))
sketch7.addConstraint(Sketcher.Constraint("DistanceX", -1, 1, 21, 3, Q("45 mm")))
sketch7.addConstraint(Sketcher.Constraint("DistanceX", -1, 1, 25, 3, Q("51 mm")))
sketch7.addConstraint(Sketcher.Constraint("DistanceX", -1, 1, 29, 3, Q("57 mm")))
sketch7.addConstraint(Sketcher.Constraint("DistanceX", -1, 1, 33, 3, Q("63 mm")))
sketch7.addConstraint(Sketcher.Constraint("DistanceX", -1, 1, 37, 3, Q("69 mm")))
sketch7.addConstraint(Sketcher.Constraint("DistanceY", -1, 1, 39, 3, Q("7.999991 mm")))
pad4 = doc.addObject("PartDesign::Pad", "Pad003")
body.addObject(pad4)
pad4.Profile = sketch7
pad4.Length = 1.5
doc.recompute()

fillet = doc.addObject("PartDesign::Fillet", "Fillet")
body.addObject(fillet)
fillet.Base = (pad4, edges_at(pad4, [(46.25, -3.75, 32)]))
fillet.Radius = 2
doc.recompute()

fillet2 = doc.addObject("PartDesign::Fillet", "Fillet001")
body.addObject(fillet2)
fillet2.Base = (fillet, edges_at(fillet, [
    (20, 17, 33.5),
    (21, 27, 33.5),
    (22, 17, 33.5),
    (21, 7, 33.5),
    (14, 15, 33.5),
    (15, 23, 33.5),
    (16, 15, 33.5),
    (15, 7, 33.5),
    (26, 19, 33.5),
    (27, 31, 33.5),
    (28, 19, 33.5),
    (27, 7, 33.5),
    (32, 21, 33.5),
    (33, 35, 33.5),
    (34, 21, 33.5),
    (33, 7, 33.5),
    (39, 39, 33.5),
    (40, 23, 33.5),
    (39, 7, 33.5),
    (38, 23, 33.5),
    (44, 25, 33.5),
    (45, 43, 33.5),
    (46, 25, 33.5),
    (45, 7, 33.5),
    (50, 27, 33.5),
    (51, 47, 33.5),
    (52, 27, 33.5),
    (51, 7, 33.5),
    (57, 47, 33.5),
    (58, 27, 33.5),
    (57, 7, 33.5),
    (56, 27, 33.5),
    (63, 47, 33.5),
    (64, 27, 33.5),
    (63, 7, 33.5),
    (62, 27, 33.5),
    (69, 47, 33.5),
    (70, 27, 33.5),
    (69, 7, 33.5),
    (68, 27, 33.5),
]))
fillet2.Radius = 0.25

doc.recompute()
